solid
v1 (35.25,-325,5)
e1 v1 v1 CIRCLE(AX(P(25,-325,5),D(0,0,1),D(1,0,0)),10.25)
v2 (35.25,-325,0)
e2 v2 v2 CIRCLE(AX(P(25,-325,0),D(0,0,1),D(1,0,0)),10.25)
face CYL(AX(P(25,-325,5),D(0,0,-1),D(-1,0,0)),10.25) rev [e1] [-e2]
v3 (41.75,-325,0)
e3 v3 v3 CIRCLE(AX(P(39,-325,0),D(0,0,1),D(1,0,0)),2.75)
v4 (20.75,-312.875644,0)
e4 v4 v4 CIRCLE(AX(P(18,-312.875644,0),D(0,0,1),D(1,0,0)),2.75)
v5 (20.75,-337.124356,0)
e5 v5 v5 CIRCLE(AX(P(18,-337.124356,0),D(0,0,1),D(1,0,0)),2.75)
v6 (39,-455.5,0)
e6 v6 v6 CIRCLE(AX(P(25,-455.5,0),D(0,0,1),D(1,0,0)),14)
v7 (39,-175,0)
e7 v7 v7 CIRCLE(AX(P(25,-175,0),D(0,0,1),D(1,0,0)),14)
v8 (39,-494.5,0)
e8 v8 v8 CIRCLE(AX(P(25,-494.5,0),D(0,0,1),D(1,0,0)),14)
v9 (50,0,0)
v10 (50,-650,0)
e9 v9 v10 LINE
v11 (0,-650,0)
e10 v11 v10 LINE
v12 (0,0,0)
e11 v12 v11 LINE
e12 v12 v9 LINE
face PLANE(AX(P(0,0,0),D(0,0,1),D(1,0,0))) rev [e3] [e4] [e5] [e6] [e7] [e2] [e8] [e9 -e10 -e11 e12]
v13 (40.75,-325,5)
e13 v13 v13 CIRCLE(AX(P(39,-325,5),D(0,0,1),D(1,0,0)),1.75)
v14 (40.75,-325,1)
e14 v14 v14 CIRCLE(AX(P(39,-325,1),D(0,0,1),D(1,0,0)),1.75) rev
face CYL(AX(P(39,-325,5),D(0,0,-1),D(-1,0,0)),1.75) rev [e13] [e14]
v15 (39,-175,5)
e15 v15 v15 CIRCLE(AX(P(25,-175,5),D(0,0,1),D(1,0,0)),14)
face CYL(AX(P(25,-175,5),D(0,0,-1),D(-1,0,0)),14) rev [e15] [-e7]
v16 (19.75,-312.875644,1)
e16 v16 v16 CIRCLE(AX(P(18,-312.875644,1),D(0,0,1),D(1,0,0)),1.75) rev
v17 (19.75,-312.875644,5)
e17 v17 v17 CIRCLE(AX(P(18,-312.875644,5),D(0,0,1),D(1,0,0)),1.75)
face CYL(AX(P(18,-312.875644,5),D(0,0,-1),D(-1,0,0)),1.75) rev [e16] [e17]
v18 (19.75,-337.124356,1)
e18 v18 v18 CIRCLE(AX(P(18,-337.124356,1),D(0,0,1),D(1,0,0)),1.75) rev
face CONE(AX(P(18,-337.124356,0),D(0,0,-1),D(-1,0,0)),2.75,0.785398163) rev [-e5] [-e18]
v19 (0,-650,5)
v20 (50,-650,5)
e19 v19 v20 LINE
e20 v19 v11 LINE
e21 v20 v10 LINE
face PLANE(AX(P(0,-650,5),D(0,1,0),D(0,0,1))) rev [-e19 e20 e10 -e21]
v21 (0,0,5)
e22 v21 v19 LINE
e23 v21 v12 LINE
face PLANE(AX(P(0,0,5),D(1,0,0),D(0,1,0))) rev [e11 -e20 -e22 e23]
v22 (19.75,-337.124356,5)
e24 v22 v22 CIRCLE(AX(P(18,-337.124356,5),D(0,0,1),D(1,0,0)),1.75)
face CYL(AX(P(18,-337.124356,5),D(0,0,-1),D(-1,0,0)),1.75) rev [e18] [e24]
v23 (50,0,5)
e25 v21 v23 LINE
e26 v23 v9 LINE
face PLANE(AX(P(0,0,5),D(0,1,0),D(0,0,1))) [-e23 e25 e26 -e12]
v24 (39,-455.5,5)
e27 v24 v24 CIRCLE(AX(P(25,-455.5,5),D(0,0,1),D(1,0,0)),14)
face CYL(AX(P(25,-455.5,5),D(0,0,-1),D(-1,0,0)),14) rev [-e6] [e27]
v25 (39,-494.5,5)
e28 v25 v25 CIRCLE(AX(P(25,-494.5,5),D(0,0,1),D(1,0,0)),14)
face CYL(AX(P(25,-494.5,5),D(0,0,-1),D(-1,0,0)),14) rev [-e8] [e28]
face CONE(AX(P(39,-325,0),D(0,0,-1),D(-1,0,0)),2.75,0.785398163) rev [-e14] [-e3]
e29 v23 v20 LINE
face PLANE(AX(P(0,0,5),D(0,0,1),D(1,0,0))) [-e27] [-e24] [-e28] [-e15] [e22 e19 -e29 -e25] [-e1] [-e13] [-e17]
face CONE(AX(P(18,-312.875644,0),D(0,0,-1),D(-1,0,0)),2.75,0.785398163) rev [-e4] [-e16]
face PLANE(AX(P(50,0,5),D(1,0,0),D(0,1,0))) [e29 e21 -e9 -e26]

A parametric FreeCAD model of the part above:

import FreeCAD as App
import Part
import Sketcher

V = App.Vector
Q = App.Units.Quantity


def edges_at(feature, points):
    """Names of the edges that pass closest to the given points."""
    edges = feature.Shape.Edges
    near = lambda p: min(range(len(edges)), key=lambda i: edges[i].distToShape(Part.Vertex(*p))[0])
    return sorted({f"Edge{near(p) + 1}" for p in points})


def add_polygon(sketch, points):
    """Adds a closed chain of lines whose ends are joined by coincident constraints."""
    first, n = sketch.GeometryCount, len(points)
    for a, b in zip(points, points[1:] + points[:1]):
        sketch.addGeometry(Part.LineSegment(App.Vector(*a, 0), App.Vector(*b, 0)), False)
    for i in range(n):
        sketch.addConstraint(Sketcher.Constraint("Coincident", first + i, 2, first + (i + 1) % n, 1))

doc = App.newDocument("Part")
body = doc.addObject("PartDesign::Body", "Body")

sketch1 = body.newObject("Sketcher::SketchObject", "Sketch")
sketch1.AttachmentSupport = (doc.getObject("XY_Plane"), [""])
sketch1.MapMode = "FlatFace"
add_polygon(sketch1, [(0, 0), (0, -650), (50, -650), (50, 0)])
sketch1.addGeometry(Part.Circle(V(25, -494.5, 0), V(0, 0, 1), 14), False)
sketch1.addGeometry(Part.Circle(V(25, -455.5, 0), V(0, 0, 1), 14), False)
sketch1.addGeometry(Part.Circle(V(18, -337.1, 0), V(0, 0, 1), 1.8), False)
sketch1.addGeometry(Part.Circle(V(18, -312.9, 0), V(0, 0, 1), 1.8), False)
sketch1.addGeometry(Part.Circle(V(25, -325, 0), V(0, 0, 1), 10.2), False)
sketch1.addGeometry(Part.Circle(V(25, -175, 0), V(0, 0, 1), 14), False)
sketch1.addGeometry(Part.Circle(V(39, -325, 0), V(0, 0, 1), 1.8), False)
sketch1.addConstraint(Sketcher.Constraint("Vertical", 0))
sketch1.addConstraint(Sketcher.Constraint("Horizontal", 1))
sketch1.addConstraint(Sketcher.Constraint("Vertical", 2))
sketch1.addConstraint(Sketcher.Constraint("Horizontal", 3))
sketch1.addConstraint(Sketcher.Constraint("Coincident", 3, 2, -1, 1))
sketch1.addConstraint(Sketcher.Constraint("Equal", 4, 5))
sketch1.addConstraint(Sketcher.Constraint("Equal", 6, 7))
sketch1.addConstraint(Sketcher.Constraint("Equal", 5, 9))
sketch1.addConstraint(Sketcher.Constraint("Equal", 7, 10))
sketch1.addConstraint(Sketcher.Constraint("Horizontal", 8, 3, 10, 3))
sketch1.addConstraint(Sketcher.Constraint("Vertical", 4, 3, 5, 3))
sketch1.addConstraint(Sketcher.Constraint("Vertical", 6, 3, 7, 3))
sketch1.addConstraint(Sketcher.Constraint("Vertical", 5, 3, 8, 3))
sketch1.addConstraint(Sketcher.Constraint("Vertical", 8, 3, 9, 3))
sketch1.addConstraint(Sketcher.Constraint("Diameter", 4, Q("28 mm")))
sketch1.addConstraint(Sketcher.Constraint("Diameter", 6, Q("3.5 mm")))
sketch1.addConstraint(Sketcher.Constraint("Diameter", 8, Q("20.5 mm")))
sketch1.addConstraint(Sketcher.Constraint("DistanceX", 1, 1, 1, 2, Q("50 mm")))
sketch1.addConstraint(Sketcher.Constraint("DistanceY", 0, 2, 0, 1, Q("650 mm")))
sketch1.addConstraint(Sketcher.Constraint("DistanceX", -1, 1, 4, 3, Q("25 mm")))
sketch1.addConstraint(Sketcher.Constraint("DistanceX", -1, 1, 6, 3, Q("18 mm")))
sketch1.addConstraint(Sketcher.Constraint("DistanceY", 8, 3, -1, 1, Q("325 mm")))
sketch1.addConstraint(Sketcher.Constraint("DistanceY", 9, 3, -1, 1, Q("175 mm")))
sketch1.addConstraint(Sketcher.Constraint("DistanceX", -1, 1, 10, 3, Q("39 mm")))
sketch1.addConstraint(Sketcher.Constraint("DistanceY", 4, 3, 5, 3, Q("39 mm")))
sketch1.addConstraint(Sketcher.Constraint("DistanceY", 4, 3, -1, 1, Q("494.5 mm")))
sketch1.addConstraint(Sketcher.Constraint("DistanceY", 6, 3, 7, 3, Q("24.248711 mm")))
sketch1.addConstraint(Sketcher.Constraint("DistanceY", 6, 3, -1, 1, Q("337.124356 mm")))
pad1 = body.newObject("PartDesign::Pad", "Pad")
pad1.Profile = sketch1
pad1.Length = 5
doc.recompute()

chamfer = body.newObject("PartDesign::Chamfer", "Chamfer")
chamfer.Base = (pad1, edges_at(pad1, [(16.25, -312.876, 0), (37.25, -325, 0), (16.25, -337.124, 0)]))
chamfer.Size = 1

doc.recompute()
